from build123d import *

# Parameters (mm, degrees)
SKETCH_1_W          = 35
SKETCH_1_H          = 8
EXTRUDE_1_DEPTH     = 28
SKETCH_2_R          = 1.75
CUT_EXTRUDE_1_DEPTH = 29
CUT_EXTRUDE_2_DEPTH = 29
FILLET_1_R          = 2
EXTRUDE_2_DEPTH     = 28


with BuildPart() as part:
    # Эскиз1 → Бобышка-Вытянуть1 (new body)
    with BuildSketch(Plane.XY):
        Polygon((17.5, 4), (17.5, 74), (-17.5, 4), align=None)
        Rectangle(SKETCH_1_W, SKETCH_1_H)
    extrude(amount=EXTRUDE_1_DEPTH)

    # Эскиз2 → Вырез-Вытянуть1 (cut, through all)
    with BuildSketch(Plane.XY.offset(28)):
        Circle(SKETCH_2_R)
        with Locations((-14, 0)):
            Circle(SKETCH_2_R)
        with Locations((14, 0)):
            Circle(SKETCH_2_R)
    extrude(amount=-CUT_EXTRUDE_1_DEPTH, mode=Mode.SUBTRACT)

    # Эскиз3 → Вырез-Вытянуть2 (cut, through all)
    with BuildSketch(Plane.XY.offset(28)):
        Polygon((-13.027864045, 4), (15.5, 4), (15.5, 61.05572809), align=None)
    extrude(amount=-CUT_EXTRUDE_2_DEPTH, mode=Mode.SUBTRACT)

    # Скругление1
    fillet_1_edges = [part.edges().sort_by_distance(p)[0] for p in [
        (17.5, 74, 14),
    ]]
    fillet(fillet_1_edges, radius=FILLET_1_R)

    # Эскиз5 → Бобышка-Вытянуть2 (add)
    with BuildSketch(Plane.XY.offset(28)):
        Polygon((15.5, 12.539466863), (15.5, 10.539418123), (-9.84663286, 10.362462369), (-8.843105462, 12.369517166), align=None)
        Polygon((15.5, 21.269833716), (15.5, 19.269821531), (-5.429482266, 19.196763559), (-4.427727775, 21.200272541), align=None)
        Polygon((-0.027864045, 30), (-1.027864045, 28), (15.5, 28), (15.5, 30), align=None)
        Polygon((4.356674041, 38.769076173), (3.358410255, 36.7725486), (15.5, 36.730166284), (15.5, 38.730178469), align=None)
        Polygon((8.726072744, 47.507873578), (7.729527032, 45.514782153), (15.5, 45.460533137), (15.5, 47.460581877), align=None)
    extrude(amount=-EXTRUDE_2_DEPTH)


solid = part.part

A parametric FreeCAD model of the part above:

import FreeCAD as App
import Part
import Sketcher
from FreeCAD import Vector
Q = App.Units.Quantity


def edges_at(feature, points):
    """Names of the edges that pass closest to the given points."""
    edges = feature.Shape.Edges
    near = lambda p: min(range(len(edges)), key=lambda i: edges[i].distToShape(Part.Vertex(*p))[0])
    return sorted({f"Edge{near(p) + 1}" for p in points})

doc = App.newDocument("Part")
body = doc.addObject("PartDesign::Body", "Body")

sketch1 = body.newObject("Sketcher::SketchObject", "Sketch")
sketch1.AttachmentSupport = (doc.getObject("XY_Plane"), [""])
sketch1.MapMode = "FlatFace"
sketch1.addGeometry(Part.LineSegment(Vector(18, 74, 0), Vector(-18, 4, 0)), False)
sketch1.addGeometry(Part.LineSegment(Vector(-18, 4, 0), Vector(-18, -4, 0)), False)
sketch1.addGeometry(Part.LineSegment(Vector(-18, -4, 0), Vector(18, -4, 0)), False)
sketch1.addGeometry(Part.LineSegment(Vector(18, -4, 0), Vector(18, 74, 0)), False)
sketch1.addConstraint(Sketcher.Constraint("Coincident", 0, 2, 1, 1))
sketch1.addConstraint(Sketcher.Constraint("Coincident", 1, 2, 2, 1))
sketch1.addConstraint(Sketcher.Constraint("Coincident", 2, 2, 3, 1))
sketch1.addConstraint(Sketcher.Constraint("Coincident", 3, 2, 0, 1))
sketch1.addConstraint(Sketcher.Constraint("Vertical", 1))
sketch1.addConstraint(Sketcher.Constraint("Horizontal", 2))
sketch1.addConstraint(Sketcher.Constraint("Vertical", 3))
sketch1.addConstraint(Sketcher.Constraint("Symmetric", 0, 2, 2, 2, -1, 1))
sketch1.addConstraint(Sketcher.Constraint("DistanceX", 2, 1, 2, 2, Q("35 mm")))
sketch1.addConstraint(Sketcher.Constraint("DistanceY", 1, 2, 1, 1, Q("8 mm")))
sketch1.addConstraint(Sketcher.Constraint("DistanceY", 3, 1, 3, 2, Q("78 mm")))
pad1 = body.newObject("PartDesign::Pad", "Pad")
pad1.Profile = sketch1
pad1.Length = 28

sketch2 = body.newObject("Sketcher::SketchObject", "Sketch001")
sketch2.AttachmentSupport = (doc.getObject("XY_Plane"), [""])
sketch2.MapMode = "FlatFace"
sketch2.AttachmentOffset = App.Placement(Vector(0, 0, 28), App.Rotation())
sketch2.addGeometry(Part.Circle(Vector(0, 0, 0), Vector(0, 0, 1), 1.8), False)
sketch2.addGeometry(Part.Circle(Vector(-14, 0, 0), Vector(0, 0, 1), 1.8), False)
sketch2.addGeometry(Part.Circle(Vector(14, 0, 0), Vector(0, 0, 1), 1.8), False)
sketch2.addConstraint(Sketcher.Constraint("Coincident", 0, 3, -1, 1))
sketch2.addConstraint(Sketcher.Constraint("Equal", 0, 1))
sketch2.addConstraint(Sketcher.Constraint("Equal", 1, 2))
sketch2.addConstraint(Sketcher.Constraint("Symmetric", 1, 3, 2, 3, -1, 1))
sketch2.addConstraint(Sketcher.Constraint("PointOnObject", 1, 3, -1))
sketch2.addConstraint(Sketcher.Constraint("Diameter", 0, Q("3.5 mm")))
sketch2.addConstraint(Sketcher.Constraint("DistanceX", 1, 3, -1, 1, Q("14 mm")))
pocket1 = body.newObject("PartDesign::Pocket", "Pocket")
pocket1.Profile = sketch2
pocket1.Type = "ThroughAll"

sketch3 = body.newObject("Sketcher::SketchObject", "Sketch002")
sketch3.AttachmentSupport = (doc.getObject("XY_Plane"), [""])
sketch3.MapMode = "FlatFace"
sketch3.AttachmentOffset = App.Placement(Vector(0, 0, 28), App.Rotation())
sketch3.addGeometry(Part.LineSegment(Vector(-13, 4, 0), Vector(16, 4, 0)), False)
sketch3.addGeometry(Part.LineSegment(Vector(16, 4, 0), Vector(16, 61, 0)), False)
sketch3.addGeometry(Part.LineSegment(Vector(16, 61, 0), Vector(-13, 4, 0)), False)
sketch3.addConstraint(Sketcher.Constraint("Coincident", 0, 2, 1, 1))
sketch3.addConstraint(Sketcher.Constraint("Coincident", 1, 2, 2, 1))
sketch3.addConstraint(Sketcher.Constraint("Coincident", 2, 2, 0, 1))
sketch3.addConstraint(Sketcher.Constraint("Horizontal", 0))
sketch3.addConstraint(Sketcher.Constraint("Vertical", 1))
sketch3.addConstraint(Sketcher.Constraint("DistanceY", -1, 1, 0, 2, Q("4 mm")))
sketch3.addConstraint(Sketcher.Constraint("DistanceX", -1, 1, 0, 2, Q("15.5 mm")))
sketch3.addConstraint(Sketcher.Constraint("DistanceY", 1, 1, 1, 2, Q("57.055728 mm")))
sketch3.addConstraint(Sketcher.Constraint("DistanceX", 0, 1, 0, 2, Q("28.527864 mm")))
pocket2 = body.newObject("PartDesign::Pocket", "Pocket001")
pocket2.Profile = sketch3
pocket2.Type = "ThroughAll"
doc.recompute()

fillet = body.newObject("PartDesign::Fillet", "Fillet")
fillet.Base = (pocket2, edges_at(pocket2, [(17.5, 74, 14)]))
fillet.Radius = 2

sketch4 = body.newObject("Sketcher::SketchObject", "Sketch003")
sketch4.AttachmentSupport = (doc.getObject("XY_Plane"), [""])
sketch4.MapMode = "FlatFace"
sketch4.AttachmentOffset = App.Placement(Vector(0, 0, 28), App.Rotation())
sketch4.addGeometry(Part.LineSegment(Vector(15.5, 10.5, 0), Vector(15.5, 12.5, 0)), False)
sketch4.addGeometry(Part.LineSegment(Vector(15.5, 12.5, 0), Vector(-8.8, 12.4, 0)), False)
sketch4.addGeometry(Part.LineSegment(Vector(-8.8, 12.4, 0), Vector(-9.8, 10.4, 0)), False)
sketch4.addGeometry(Part.LineSegment(Vector(-9.8, 10.4, 0), Vector(15.5, 10.5, 0)), False)
sketch4.addGeometry(Part.LineSegment(Vector(15.5, 19.3, 0), Vector(15.5, 21.3, 0)), False)
sketch4.addGeometry(Part.LineSegment(Vector(15.5, 21.3, 0), Vector(-4.4, 21.2, 0)), False)
sketch4.addGeometry(Part.LineSegment(Vector(-4.4, 21.2, 0), Vector(-5.4, 19.2, 0)), False)
sketch4.addGeometry(Part.LineSegment(Vector(-5.4, 19.2, 0), Vector(15.5, 19.3, 0)), False)
sketch4.addGeometry(Part.LineSegment(Vector(0, 30, 0), Vector(-1, 28, 0)), False)
sketch4.addGeometry(Part.LineSegment(Vector(-1, 28, 0), Vector(15.5, 28, 0)), False)
sketch4.addGeometry(Part.LineSegment(Vector(15.5, 28, 0), Vector(15.5, 30, 0)), False)
sketch4.addGeometry(Part.LineSegment(Vector(15.5, 30, 0), Vector(0, 30, 0)), False)
sketch4.addGeometry(Part.LineSegment(Vector(4.4, 38.8, 0), Vector(3.4, 36.8, 0)), False)
sketch4.addGeometry(Part.LineSegment(Vector(3.4, 36.8, 0), Vector(15.5, 36.7, 0)), False)
sketch4.addGeometry(Part.LineSegment(Vector(15.5, 36.7, 0), Vector(15.5, 38.7, 0)), False)
sketch4.addGeometry(Part.LineSegment(Vector(15.5, 38.7, 0), Vector(4.4, 38.8, 0)), False)
sketch4.addGeometry(Part.LineSegment(Vector(8.7, 47.5, 0), Vector(7.7, 45.5, 0)), False)
sketch4.addGeometry(Part.LineSegment(Vector(7.7, 45.5, 0), Vector(15.5, 45.5, 0)), False)
sketch4.addGeometry(Part.LineSegment(Vector(15.5, 45.5, 0), Vector(15.5, 47.5, 0)), False)
sketch4.addGeometry(Part.LineSegment(Vector(15.5, 47.5, 0), Vector(8.7, 47.5, 0)), False)
sketch4.addConstraint(Sketcher.Constraint("Coincident", 0, 2, 1, 1))
sketch4.addConstraint(Sketcher.Constraint("Coincident", 1, 2, 2, 1))
sketch4.addConstraint(Sketcher.Constraint("Coincident", 2, 2, 3, 1))
sketch4.addConstraint(Sketcher.Constraint("Coincident", 3, 2, 0, 1))
sketch4.addConstraint(Sketcher.Constraint("Coincident", 4, 2, 5, 1))
sketch4.addConstraint(Sketcher.Constraint("Coincident", 5, 2, 6, 1))
sketch4.addConstraint(Sketcher.Constraint("Coincident", 6, 2, 7, 1))
sketch4.addConstraint(Sketcher.Constraint("Coincident", 7, 2, 4, 1))
sketch4.addConstraint(Sketcher.Constraint("Coincident", 8, 2, 9, 1))
sketch4.addConstraint(Sketcher.Constraint("Coincident", 9, 2, 10, 1))
sketch4.addConstraint(Sketcher.Constraint("Coincident", 10, 2, 11, 1))
sketch4.addConstraint(Sketcher.Constraint("Coincident", 11, 2, 8, 1))
sketch4.addConstraint(Sketcher.Constraint("Coincident", 12, 2, 13, 1))
sketch4.addConstraint(Sketcher.Constraint("Coincident", 13, 2, 14, 1))
sketch4.addConstraint(Sketcher.Constraint("Coincident", 14, 2, 15, 1))
sketch4.addConstraint(Sketcher.Constraint("Coincident", 15, 2, 12, 1))
sketch4.addConstraint(Sketcher.Constraint("Coincident", 16, 2, 17, 1))
sketch4.addConstraint(Sketcher.Constraint("Coincident", 17, 2, 18, 1))
sketch4.addConstraint(Sketcher.Constraint("Coincident", 18, 2, 19, 1))
sketch4.addConstraint(Sketcher.Constraint("Coincident", 19, 2, 16, 1))
sketch4.addConstraint(Sketcher.Constraint("Vertical", 0))
sketch4.addConstraint(Sketcher.Constraint("Vertical", 4))
sketch4.addConstraint(Sketcher.Constraint("Horizontal", 9))
sketch4.addConstraint(Sketcher.Constraint("Vertical", 10))
sketch4.addConstraint(Sketcher.Constraint("Horizontal", 11))
sketch4.addConstraint(Sketcher.Constraint("Vertical", 14))
sketch4.addConstraint(Sketcher.Constraint("Vertical", 18))
sketch4.addConstraint(Sketcher.Constraint("Parallel", 1, 3))
sketch4.addConstraint(Sketcher.Constraint("Parallel", 2, 6))
sketch4.addConstraint(Sketcher.Constraint("Parallel", 5, 7))
sketch4.addConstraint(Sketcher.Constraint("Parallel", 6, 8))
sketch4.addConstraint(Sketcher.Constraint("Parallel", 8, 12))
sketch4.addConstraint(Sketcher.Constraint("Parallel", 13, 15))
sketch4.addConstraint(Sketcher.Constraint("Parallel", 12, 16))
sketch4.addConstraint(Sketcher.Constraint("Parallel", 17, 19))
sketch4.addConstraint(Sketcher.Constraint("Vertical", 3, 2, 4, 2))
sketch4.addConstraint(Sketcher.Constraint("Vertical", 7, 2, 9, 2))
sketch4.addConstraint(Sketcher.Constraint("Vertical", 10, 2, 13, 2))
sketch4.addConstraint(Sketcher.Constraint("Vertical", 14, 2, 17, 2))
sketch4.addConstraint(Sketcher.Constraint("Equal", 4, 14))
sketch4.addConstraint(Sketcher.Constraint("Equal", 0, 18))
sketch4.addConstraint(Sketcher.Constraint("DistanceY", 10, 1, 10, 2, Q("2 mm")))
sketch4.addConstraint(Sketcher.Constraint("DistanceY", -1, 1, 8, 2, Q("28 mm")))
sketch4.addConstraint(Sketcher.Constraint("Angle", 1, Q("-179.6 deg")))
sketch4.addConstraint(Sketcher.Constraint("Angle", 5, Q("-179.8 deg")))
sketch4.addConstraint(Sketcher.Constraint("Angle", 13, Q("-0.2 deg")))
sketch4.addConstraint(Sketcher.Constraint("Angle", 17, Q("-0.4 deg")))
sketch4.addConstraint(Sketcher.Constraint("DistanceX", 8, 2, 11, 2, Q("1 mm")))
sketch4.addConstraint(Sketcher.Constraint("DistanceX", -1, 1, 0, 2, Q("15.5 mm")))
sketch4.addConstraint(Sketcher.Constraint("Distance", 1, Q("24.343699 mm")))
sketch4.addConstraint(Sketcher.Constraint("DistanceY", 0, 1, 0, 2, Q("2.000049 mm")))
sketch4.addConstraint(Sketcher.Constraint("DistanceY", 2, 2, 6, 2, Q("8.834301 mm")))
sketch4.addConstraint(Sketcher.Constraint("DistanceY", 16, 2, 18, 2, Q("1.9458 mm")))
sketch4.addConstraint(Sketcher.Constraint("DistanceX", 15, 2, 19, 2, Q("4.369399 mm")))
sketch4.addConstraint(Sketcher.Constraint("Distance", 5, Q("19.927849 mm")))
sketch4.addConstraint(Sketcher.Constraint("Distance", 6, Q("2.239991 mm")))
sketch4.addConstraint(Sketcher.Constraint("DistanceX", 9, 1, 9, 2, Q("16.527864 mm")))
sketch4.addConstraint(Sketcher.Constraint("DistanceY", -1, 1, 3, 2, Q("10.539418 mm")))
sketch4.addConstraint(Sketcher.Constraint("DistanceY", -1, 1, 12, 2, Q("36.772549 mm")))
sketch4.addConstraint(Sketcher.Constraint("DistanceY", -1, 1, 18, 2, Q("47.460582 mm")))
pad2 = body.newObject("PartDesign::Pad", "Pad001")
pad2.Profile = sketch4
pad2.Length = 28
pad2.Reversed = True

doc.recompute()
